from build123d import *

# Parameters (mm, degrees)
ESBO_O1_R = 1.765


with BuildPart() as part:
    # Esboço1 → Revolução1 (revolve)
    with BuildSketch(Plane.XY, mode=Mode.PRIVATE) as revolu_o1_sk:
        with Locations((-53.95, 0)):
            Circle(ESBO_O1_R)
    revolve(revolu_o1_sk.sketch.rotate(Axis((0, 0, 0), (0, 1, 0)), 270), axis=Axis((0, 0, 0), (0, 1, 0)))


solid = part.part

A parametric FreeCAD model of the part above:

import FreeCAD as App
import Part
import Sketcher

V = App.Vector

doc = App.newDocument("Part")
body = doc.addObject("PartDesign::Body", "Body")

# Sketch on XY plane
sketch1 = body.newObject("Sketcher::SketchObject", "Sketch")
sketch1.AttachmentSupport = (doc.getObject("XY_Plane"), [""])
sketch1.MapMode = "FlatFace"
sketch1.addGeometry(Part.Circle(V(-53.95, 0, 0), V(0, 0, 1), 1.765), False)
sketch1.addConstraint([
    Sketcher.Constraint("PointOnObject", 0, 3, -1),
    Sketcher.Constraint("Diameter", 0, 3.53),
    Sketcher.Constraint("DistanceX", 0, 3, -1, 1, 53.95),
])
revolution = body.newObject("PartDesign::Revolution", "Revolution")
revolution.Profile = sketch1
revolution.ReferenceAxis = (sketch1, ["V_Axis"])
revolution.Angle = 360

doc.recompute()
